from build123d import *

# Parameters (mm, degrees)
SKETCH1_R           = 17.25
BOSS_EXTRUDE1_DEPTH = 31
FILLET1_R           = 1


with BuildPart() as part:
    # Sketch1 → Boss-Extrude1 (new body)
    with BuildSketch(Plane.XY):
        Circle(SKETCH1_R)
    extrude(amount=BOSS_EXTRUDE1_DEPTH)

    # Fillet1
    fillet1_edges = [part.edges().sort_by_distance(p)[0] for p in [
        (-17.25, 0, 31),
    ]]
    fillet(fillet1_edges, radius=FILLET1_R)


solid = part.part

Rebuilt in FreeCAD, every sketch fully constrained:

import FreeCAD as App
import Part
import Sketcher

V = App.Vector
Q = App.Units.Quantity


def edges_at(feature, points):
    """Names of the edges that pass closest to the given points."""
    edges = feature.Shape.Edges
    near = lambda p: min(range(len(edges)), key=lambda i: edges[i].distToShape(Part.Vertex(*p))[0])
    return sorted({f"Edge{near(p) + 1}" for p in points})

doc = App.newDocument("Part")
params = doc.addObject("Spreadsheet::Sheet", "Params")
for row, (alias, value) in enumerate([
    ("sketch1_diameter", "34.5 mm"),
    ("pad1_length", "31 mm"),
    ("fillet_radius", "1 mm"),
], start=1):
    params.set(f"A{row}", alias)
    params.set(f"B{row}", "=" + value)
    params.setAlias(f"B{row}", alias)

body = doc.addObject("PartDesign::Body", "Body")

# Sketch on XY plane
sketch1 = body.newObject("Sketcher::SketchObject", "Sketch")
sketch1.AttachmentSupport = (doc.getObject("XY_Plane"), [""])
sketch1.MapMode = "FlatFace"
sketch1.addGeometry(Part.Circle(V(0, 0, 0), V(0, 0, 1), 17), False)
sketch1.addConstraint([
    Sketcher.Constraint("Coincident", 0, 3, -1, 1),
    Sketcher.Constraint("Diameter", 0, Q("34.5 mm")),
])
sketch1.setExpression("Constraints[1]", "Params.sketch1_diameter")
pad1 = body.newObject("PartDesign::Pad", "Pad")
pad1.Profile = sketch1
pad1.setExpression("Length", "Params.pad1_length")
doc.recompute()

fillet = body.newObject("PartDesign::Fillet", "Fillet")
fillet.Base = (pad1, edges_at(pad1, [(-17.25, 0, 31)]))
fillet.setExpression("Radius", "Params.fillet_radius")

doc.recompute()
